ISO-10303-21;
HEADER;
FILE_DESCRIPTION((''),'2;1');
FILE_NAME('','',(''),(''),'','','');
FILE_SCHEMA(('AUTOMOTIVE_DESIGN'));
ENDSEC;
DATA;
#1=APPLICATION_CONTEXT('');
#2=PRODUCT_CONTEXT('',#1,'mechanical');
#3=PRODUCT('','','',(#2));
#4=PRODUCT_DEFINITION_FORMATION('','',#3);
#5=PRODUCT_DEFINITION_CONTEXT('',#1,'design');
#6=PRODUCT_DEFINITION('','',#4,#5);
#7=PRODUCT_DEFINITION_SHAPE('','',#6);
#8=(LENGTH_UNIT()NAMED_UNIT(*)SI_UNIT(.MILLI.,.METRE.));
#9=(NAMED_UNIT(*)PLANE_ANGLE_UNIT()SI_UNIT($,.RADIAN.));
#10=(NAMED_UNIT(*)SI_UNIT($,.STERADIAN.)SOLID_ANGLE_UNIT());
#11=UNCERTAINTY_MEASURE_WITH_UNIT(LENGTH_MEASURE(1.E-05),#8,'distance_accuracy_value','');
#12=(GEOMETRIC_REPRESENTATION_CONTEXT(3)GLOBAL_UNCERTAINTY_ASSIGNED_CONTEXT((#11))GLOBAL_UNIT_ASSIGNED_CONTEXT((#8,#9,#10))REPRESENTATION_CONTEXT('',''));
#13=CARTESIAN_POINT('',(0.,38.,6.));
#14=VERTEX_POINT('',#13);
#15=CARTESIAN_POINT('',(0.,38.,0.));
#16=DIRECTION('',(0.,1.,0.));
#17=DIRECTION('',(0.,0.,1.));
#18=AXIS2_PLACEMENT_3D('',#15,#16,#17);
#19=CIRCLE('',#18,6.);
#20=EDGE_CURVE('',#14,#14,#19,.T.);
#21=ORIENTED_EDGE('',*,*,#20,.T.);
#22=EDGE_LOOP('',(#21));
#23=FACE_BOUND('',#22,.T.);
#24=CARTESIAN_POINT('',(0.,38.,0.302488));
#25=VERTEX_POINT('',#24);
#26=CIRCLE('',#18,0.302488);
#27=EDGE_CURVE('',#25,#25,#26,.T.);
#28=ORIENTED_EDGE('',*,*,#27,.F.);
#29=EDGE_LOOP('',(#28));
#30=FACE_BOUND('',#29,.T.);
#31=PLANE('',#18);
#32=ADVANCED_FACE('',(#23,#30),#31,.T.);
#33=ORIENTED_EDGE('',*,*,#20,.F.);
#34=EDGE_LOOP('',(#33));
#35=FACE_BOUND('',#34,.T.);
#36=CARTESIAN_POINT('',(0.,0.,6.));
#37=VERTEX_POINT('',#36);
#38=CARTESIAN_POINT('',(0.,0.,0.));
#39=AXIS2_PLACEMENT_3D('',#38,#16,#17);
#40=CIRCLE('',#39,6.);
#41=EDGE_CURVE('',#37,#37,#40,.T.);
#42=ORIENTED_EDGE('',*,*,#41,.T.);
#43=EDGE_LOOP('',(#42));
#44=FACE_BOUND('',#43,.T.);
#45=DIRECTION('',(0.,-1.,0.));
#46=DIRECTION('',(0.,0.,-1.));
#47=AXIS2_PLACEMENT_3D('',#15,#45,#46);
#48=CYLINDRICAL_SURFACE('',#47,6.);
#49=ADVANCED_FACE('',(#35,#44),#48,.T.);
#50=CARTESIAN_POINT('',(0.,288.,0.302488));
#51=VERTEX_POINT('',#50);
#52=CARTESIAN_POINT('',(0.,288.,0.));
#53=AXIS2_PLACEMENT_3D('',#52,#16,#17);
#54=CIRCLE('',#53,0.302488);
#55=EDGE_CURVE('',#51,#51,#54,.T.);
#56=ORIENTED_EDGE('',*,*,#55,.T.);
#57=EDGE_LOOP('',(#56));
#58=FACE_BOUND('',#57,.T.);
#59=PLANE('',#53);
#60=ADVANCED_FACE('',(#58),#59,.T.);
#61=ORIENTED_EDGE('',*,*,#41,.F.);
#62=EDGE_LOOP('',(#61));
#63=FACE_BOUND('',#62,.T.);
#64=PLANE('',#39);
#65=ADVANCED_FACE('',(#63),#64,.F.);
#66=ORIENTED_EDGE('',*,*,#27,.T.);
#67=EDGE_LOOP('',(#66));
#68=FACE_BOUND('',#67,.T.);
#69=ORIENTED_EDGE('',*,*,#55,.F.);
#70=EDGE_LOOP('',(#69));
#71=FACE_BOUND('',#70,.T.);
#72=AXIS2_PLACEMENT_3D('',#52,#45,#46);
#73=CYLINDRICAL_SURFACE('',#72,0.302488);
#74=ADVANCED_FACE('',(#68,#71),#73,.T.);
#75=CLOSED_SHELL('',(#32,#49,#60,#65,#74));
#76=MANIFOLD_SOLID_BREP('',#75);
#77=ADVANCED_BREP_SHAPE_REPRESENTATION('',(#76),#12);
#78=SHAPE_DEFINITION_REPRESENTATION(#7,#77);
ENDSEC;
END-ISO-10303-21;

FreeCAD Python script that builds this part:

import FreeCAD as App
import Part
import Sketcher

V = App.Vector

doc = App.newDocument("Part")
body = doc.addObject("PartDesign::Body", "Body")

# Sketch on XZ plane
sketch1 = body.newObject("Sketcher::SketchObject", "Sketch")
sketch1.AttachmentSupport = (doc.getObject("XZ_Plane"), [""])
sketch1.MapMode = "FlatFace"
sketch1.addGeometry(Part.Circle(V(0, 0, 0), V(0, 0, 1), 6), False)
sketch1.addConstraint([
    Sketcher.Constraint("Coincident", 0, 3, -1, 1),
    Sketcher.Constraint("Diameter", 0, 12.0),
])
pad1 = body.newObject("PartDesign::Pad", "Pad")
pad1.Profile = sketch1
pad1.Length = 38
pad1.Reversed = True

# Sketch on XZ plane
sketch2 = body.newObject("Sketcher::SketchObject", "Sketch001")
sketch2.AttachmentSupport = (doc.getObject("XZ_Plane"), [""])
sketch2.MapMode = "FlatFace"
sketch2.AttachmentOffset = App.Placement(V(0, 0, -38), App.Rotation())
sketch2.addGeometry(Part.Circle(V(0, 0, 0), V(0, 0, 1), 0.3), False)
sketch2.addConstraint([
    Sketcher.Constraint("Coincident", 0, 3, -1, 1),
    Sketcher.Constraint("Diameter", 0, 0.604976),
])
pad2 = body.newObject("PartDesign::Pad", "Pad001")
pad2.Profile = sketch2
pad2.Length = 250
pad2.Reversed = True

doc.recompute()
